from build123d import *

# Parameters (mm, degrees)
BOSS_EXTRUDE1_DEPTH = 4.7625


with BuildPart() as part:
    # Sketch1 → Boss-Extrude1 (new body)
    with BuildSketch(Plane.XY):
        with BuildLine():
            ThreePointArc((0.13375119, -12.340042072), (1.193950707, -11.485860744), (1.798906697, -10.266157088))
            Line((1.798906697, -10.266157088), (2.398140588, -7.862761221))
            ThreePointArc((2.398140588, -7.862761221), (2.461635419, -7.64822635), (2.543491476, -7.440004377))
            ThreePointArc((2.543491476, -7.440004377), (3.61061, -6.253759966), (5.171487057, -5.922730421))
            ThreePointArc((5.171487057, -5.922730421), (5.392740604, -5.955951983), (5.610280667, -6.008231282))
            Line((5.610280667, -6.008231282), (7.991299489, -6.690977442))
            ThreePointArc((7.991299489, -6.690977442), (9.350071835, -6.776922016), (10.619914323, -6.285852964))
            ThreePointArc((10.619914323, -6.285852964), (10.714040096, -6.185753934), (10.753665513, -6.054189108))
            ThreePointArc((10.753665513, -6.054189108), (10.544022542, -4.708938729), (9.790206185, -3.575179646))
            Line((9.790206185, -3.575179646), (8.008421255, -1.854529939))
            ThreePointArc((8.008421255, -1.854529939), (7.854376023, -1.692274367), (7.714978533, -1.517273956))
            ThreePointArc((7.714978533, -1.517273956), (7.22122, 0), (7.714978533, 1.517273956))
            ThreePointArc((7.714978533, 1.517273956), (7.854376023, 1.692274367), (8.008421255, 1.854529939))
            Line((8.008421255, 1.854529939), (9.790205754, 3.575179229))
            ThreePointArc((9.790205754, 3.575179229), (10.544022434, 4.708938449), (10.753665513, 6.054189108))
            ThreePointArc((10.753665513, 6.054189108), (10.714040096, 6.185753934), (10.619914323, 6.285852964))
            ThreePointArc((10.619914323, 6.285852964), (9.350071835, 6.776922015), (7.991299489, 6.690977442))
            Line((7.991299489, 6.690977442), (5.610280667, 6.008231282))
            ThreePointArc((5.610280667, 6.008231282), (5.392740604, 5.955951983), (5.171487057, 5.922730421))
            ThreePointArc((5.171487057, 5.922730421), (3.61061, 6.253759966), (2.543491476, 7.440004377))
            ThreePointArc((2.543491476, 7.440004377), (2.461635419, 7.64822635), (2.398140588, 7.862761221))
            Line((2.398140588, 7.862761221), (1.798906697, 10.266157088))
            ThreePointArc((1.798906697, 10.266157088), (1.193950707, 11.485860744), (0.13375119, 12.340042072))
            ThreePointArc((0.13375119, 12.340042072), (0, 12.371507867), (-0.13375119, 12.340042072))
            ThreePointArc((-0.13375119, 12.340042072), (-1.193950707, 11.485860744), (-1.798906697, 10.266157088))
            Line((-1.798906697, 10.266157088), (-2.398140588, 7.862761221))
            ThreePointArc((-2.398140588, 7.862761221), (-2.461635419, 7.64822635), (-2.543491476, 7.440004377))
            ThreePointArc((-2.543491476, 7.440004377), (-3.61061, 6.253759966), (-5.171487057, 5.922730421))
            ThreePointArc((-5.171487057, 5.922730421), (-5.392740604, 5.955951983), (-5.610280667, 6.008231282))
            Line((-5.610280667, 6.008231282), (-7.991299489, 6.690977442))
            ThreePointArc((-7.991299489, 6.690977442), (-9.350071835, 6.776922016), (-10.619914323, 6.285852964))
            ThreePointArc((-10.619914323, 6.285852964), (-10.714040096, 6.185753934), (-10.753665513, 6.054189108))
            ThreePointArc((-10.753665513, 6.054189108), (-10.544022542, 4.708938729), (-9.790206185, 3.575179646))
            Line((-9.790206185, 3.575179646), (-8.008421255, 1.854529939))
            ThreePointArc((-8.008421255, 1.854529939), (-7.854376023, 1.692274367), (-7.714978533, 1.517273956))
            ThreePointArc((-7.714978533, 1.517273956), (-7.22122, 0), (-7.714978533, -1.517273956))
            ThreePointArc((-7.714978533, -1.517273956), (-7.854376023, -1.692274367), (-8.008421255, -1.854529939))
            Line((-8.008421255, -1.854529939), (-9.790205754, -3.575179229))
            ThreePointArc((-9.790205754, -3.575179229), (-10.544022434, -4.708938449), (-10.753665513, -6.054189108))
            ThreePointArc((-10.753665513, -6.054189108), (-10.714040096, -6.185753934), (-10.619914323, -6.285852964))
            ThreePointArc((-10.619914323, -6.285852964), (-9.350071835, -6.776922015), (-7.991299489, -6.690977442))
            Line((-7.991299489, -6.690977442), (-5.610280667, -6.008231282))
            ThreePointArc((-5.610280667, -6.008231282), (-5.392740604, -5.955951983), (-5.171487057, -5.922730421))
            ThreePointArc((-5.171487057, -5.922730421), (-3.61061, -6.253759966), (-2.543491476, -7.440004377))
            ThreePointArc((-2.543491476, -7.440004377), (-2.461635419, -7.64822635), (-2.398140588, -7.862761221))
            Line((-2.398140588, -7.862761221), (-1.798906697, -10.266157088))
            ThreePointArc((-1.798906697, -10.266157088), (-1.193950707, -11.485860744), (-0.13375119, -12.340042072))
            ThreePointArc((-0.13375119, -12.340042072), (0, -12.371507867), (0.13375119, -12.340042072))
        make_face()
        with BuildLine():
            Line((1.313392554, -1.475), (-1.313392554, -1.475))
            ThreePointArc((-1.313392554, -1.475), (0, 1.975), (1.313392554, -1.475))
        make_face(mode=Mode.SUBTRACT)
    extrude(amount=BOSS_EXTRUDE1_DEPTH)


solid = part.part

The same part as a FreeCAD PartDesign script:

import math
import FreeCAD as App
import Part
import Sketcher
Q = App.Units.Quantity

doc = App.newDocument("Part")
body = doc.addObject("PartDesign::Body", "Body")

# Sketch on XY plane
sketch1 = body.newObject("Sketcher::SketchObject", "Sketch")
sketch1.AttachmentSupport = (doc.getObject("XY_Plane"), [""])
sketch1.MapMode = "FlatFace"
sketch1.addGeometry(Part.ArcOfCircle(Part.Circle(App.Vector(-1.28, -9.5, 0), App.Vector(0, 0, 1), 3.18), math.radians(-64), math.radians(-14)), False)
sketch1.addGeometry(Part.LineSegment(App.Vector(1.8, -10.27, 0), App.Vector(2.4, -7.86, 0)), False)
sketch1.addGeometry(Part.ArcOfCircle(Part.Circle(App.Vector(4.9, -8.49, 0), App.Vector(0, 0, 1), 2.58), math.radians(156.05), math.radians(166)), False)
sketch1.addGeometry(Part.ArcOfCircle(Part.Circle(App.Vector(4.9, -8.49, 0), App.Vector(0, 0, 1), 2.58), math.radians(84), math.radians(156)), False)
sketch1.addGeometry(Part.ArcOfCircle(Part.Circle(App.Vector(4.9, -8.49, 0), App.Vector(0, 0, 1), 2.58), math.radians(74), math.radians(83.95)), False)
sketch1.addGeometry(Part.LineSegment(App.Vector(5.61, -6.01, 0), App.Vector(7.99, -6.69, 0)), False)
sketch1.addGeometry(Part.ArcOfCircle(Part.Circle(App.Vector(8.87, -3.64, 0), App.Vector(0, 0, 1), 3.17), math.radians(-106), math.radians(-56)), False)
sketch1.addGeometry(Part.ArcOfCircle(Part.Circle(App.Vector(10.45, -6.04, 0), App.Vector(0, 0, 1), 0.3), math.radians(-56), math.radians(-4)), False)
sketch1.addGeometry(Part.ArcOfCircle(Part.Circle(App.Vector(7.58, -5.86, 0), App.Vector(0, 0, 1), 3.18), math.radians(-4), math.radians(46)), False)
sketch1.addGeometry(Part.LineSegment(App.Vector(9.79, -3.58, 0), App.Vector(8.01, -1.85, 0)), False)
sketch1.addGeometry(Part.ArcOfCircle(Part.Circle(App.Vector(9.8, 0, 0), App.Vector(0, 0, 1), 2.58), math.radians(-143.95), math.radians(-134)), False)
sketch1.addGeometry(Part.ArcOfCircle(Part.Circle(App.Vector(9.8, 0, 0), App.Vector(0, 0, 1), 2.58), math.radians(144), math.radians(216)), False)
sketch1.addGeometry(Part.ArcOfCircle(Part.Circle(App.Vector(9.8, 0, 0), App.Vector(0, 0, 1), 2.58), math.radians(134), math.radians(143.95)), False)
sketch1.addGeometry(Part.LineSegment(App.Vector(8.01, 1.85, 0), App.Vector(9.79, 3.58, 0)), False)
sketch1.addGeometry(Part.ArcOfCircle(Part.Circle(App.Vector(7.58, 5.86, 0), App.Vector(0, 0, 1), 3.17), math.radians(-46), math.radians(4)), False)
sketch1.addGeometry(Part.ArcOfCircle(Part.Circle(App.Vector(10.45, 6.04, 0), App.Vector(0, 0, 1), 0.3), math.radians(4), math.radians(56)), False)
sketch1.addGeometry(Part.ArcOfCircle(Part.Circle(App.Vector(8.87, 3.64, 0), App.Vector(0, 0, 1), 3.18), math.radians(56), math.radians(106)), False)
sketch1.addGeometry(Part.LineSegment(App.Vector(7.99, 6.69, 0), App.Vector(5.61, 6.01, 0)), False)
sketch1.addGeometry(Part.ArcOfCircle(Part.Circle(App.Vector(4.9, 8.49, 0), App.Vector(0, 0, 1), 2.58), math.radians(-83.95), math.radians(-74)), False)
sketch1.addGeometry(Part.ArcOfCircle(Part.Circle(App.Vector(4.9, 8.49, 0), App.Vector(0, 0, 1), 2.58), math.radians(-156), math.radians(-84)), False)
sketch1.addGeometry(Part.ArcOfCircle(Part.Circle(App.Vector(4.9, 8.49, 0), App.Vector(0, 0, 1), 2.58), math.radians(-166), math.radians(-156.05)), False)
sketch1.addGeometry(Part.LineSegment(App.Vector(2.4, 7.86, 0), App.Vector(1.8, 10.27, 0)), False)
sketch1.addGeometry(Part.ArcOfCircle(Part.Circle(App.Vector(-1.28, 9.5, 0), App.Vector(0, 0, 1), 3.18), math.radians(14), math.radians(64)), False)
sketch1.addGeometry(Part.ArcOfCircle(Part.Circle(App.Vector(0, 12.07, 0), App.Vector(0, 0, 1), 0.3), math.radians(64), math.radians(116)), False)
sketch1.addGeometry(Part.ArcOfCircle(Part.Circle(App.Vector(1.28, 9.5, 0), App.Vector(0, 0, 1), 3.18), math.radians(116), math.radians(166)), False)
sketch1.addGeometry(Part.LineSegment(App.Vector(-1.8, 10.27, 0), App.Vector(-2.4, 7.86, 0)), False)
sketch1.addGeometry(Part.ArcOfCircle(Part.Circle(App.Vector(-4.9, 8.49, 0), App.Vector(0, 0, 1), 2.58), math.radians(-23.95), math.radians(-14)), False)
sketch1.addGeometry(Part.ArcOfCircle(Part.Circle(App.Vector(-4.9, 8.49, 0), App.Vector(0, 0, 1), 2.58), math.radians(-96), math.radians(-24)), False)
sketch1.addGeometry(Part.ArcOfCircle(Part.Circle(App.Vector(-4.9, 8.49, 0), App.Vector(0, 0, 1), 2.58), math.radians(-106), math.radians(-96.05)), False)
sketch1.addGeometry(Part.LineSegment(App.Vector(-5.61, 6.01, 0), App.Vector(-7.99, 6.69, 0)), False)
sketch1.addGeometry(Part.ArcOfCircle(Part.Circle(App.Vector(-8.87, 3.64, 0), App.Vector(0, 0, 1), 3.17), math.radians(74), math.radians(124)), False)
sketch1.addGeometry(Part.ArcOfCircle(Part.Circle(App.Vector(-10.45, 6.04, 0), App.Vector(0, 0, 1), 0.3), math.radians(124), math.radians(176)), False)
sketch1.addGeometry(Part.ArcOfCircle(Part.Circle(App.Vector(-7.58, 5.86, 0), App.Vector(0, 0, 1), 3.18), math.radians(176), math.radians(226)), False)
sketch1.addGeometry(Part.LineSegment(App.Vector(-9.79, 3.58, 0), App.Vector(-8.01, 1.85, 0)), False)
sketch1.addGeometry(Part.ArcOfCircle(Part.Circle(App.Vector(-9.8, 0, 0), App.Vector(0, 0, 1), 2.58), math.radians(36.05), math.radians(46)), False)
sketch1.addGeometry(Part.ArcOfCircle(Part.Circle(App.Vector(-9.8, 0, 0), App.Vector(0, 0, 1), 2.58), math.radians(-36), math.radians(36)), False)
sketch1.addGeometry(Part.ArcOfCircle(Part.Circle(App.Vector(-9.8, 0, 0), App.Vector(0, 0, 1), 2.58), math.radians(-46), math.radians(-36.05)), False)
sketch1.addGeometry(Part.LineSegment(App.Vector(-8.01, -1.85, 0), App.Vector(-9.79, -3.58, 0)), False)
sketch1.addGeometry(Part.ArcOfCircle(Part.Circle(App.Vector(-7.58, -5.86, 0), App.Vector(0, 0, 1), 3.17), math.radians(134), math.radians(184)), False)
sketch1.addGeometry(Part.ArcOfCircle(Part.Circle(App.Vector(-10.45, -6.04, 0), App.Vector(0, 0, 1), 0.3), math.radians(-176), math.radians(-124)), False)
sketch1.addGeometry(Part.ArcOfCircle(Part.Circle(App.Vector(-8.87, -3.64, 0), App.Vector(0, 0, 1), 3.18), math.radians(-124), math.radians(-74)), False)
sketch1.addGeometry(Part.LineSegment(App.Vector(-7.99, -6.69, 0), App.Vector(-5.61, -6.01, 0)), False)
sketch1.addGeometry(Part.ArcOfCircle(Part.Circle(App.Vector(-4.9, -8.49, 0), App.Vector(0, 0, 1), 2.58), math.radians(96.05), math.radians(106)), False)
sketch1.addGeometry(Part.ArcOfCircle(Part.Circle(App.Vector(-4.9, -8.49, 0), App.Vector(0, 0, 1), 2.58), math.radians(24), math.radians(96)), False)
sketch1.addGeometry(Part.ArcOfCircle(Part.Circle(App.Vector(-4.9, -8.49, 0), App.Vector(0, 0, 1), 2.58), math.radians(14), math.radians(23.95)), False)
sketch1.addGeometry(Part.LineSegment(App.Vector(-2.4, -7.86, 0), App.Vector(-1.8, -10.27, 0)), False)
sketch1.addGeometry(Part.ArcOfCircle(Part.Circle(App.Vector(1.28, -9.5, 0), App.Vector(0, 0, 1), 3.18), math.radians(-166), math.radians(-116)), False)
sketch1.addGeometry(Part.ArcOfCircle(Part.Circle(App.Vector(0, -12.07, 0), App.Vector(0, 0, 1), 0.3), math.radians(-116), math.radians(-64)), False)
sketch1.addGeometry(Part.ArcOfCircle(Part.Circle(App.Vector(0, 0, 0), App.Vector(0, 0, 1), 1.98), math.radians(-48), math.radians(228)), False)
sketch1.addGeometry(Part.LineSegment(App.Vector(1.31, -1.48, 0), App.Vector(-1.31, -1.48, 0)), False)
sketch1.addConstraint(Sketcher.Constraint("Tangent", 0, 2, 1, 1))
sketch1.addConstraint(Sketcher.Constraint("Tangent", 1, 2, 2, 2))
sketch1.addConstraint(Sketcher.Constraint("Tangent", 2, 1, 3, 2))
sketch1.addConstraint(Sketcher.Constraint("Tangent", 3, 1, 4, 2))
sketch1.addConstraint(Sketcher.Constraint("Tangent", 4, 1, 5, 1))
sketch1.addConstraint(Sketcher.Constraint("Tangent", 5, 2, 6, 1))
sketch1.addConstraint(Sketcher.Constraint("Tangent", 6, 2, 7, 1))
sketch1.addConstraint(Sketcher.Constraint("Tangent", 7, 2, 8, 1))
sketch1.addConstraint(Sketcher.Constraint("Tangent", 8, 2, 9, 1))
sketch1.addConstraint(Sketcher.Constraint("Tangent", 9, 2, 10, 2))
sketch1.addConstraint(Sketcher.Constraint("Tangent", 10, 1, 11, 2))
sketch1.addConstraint(Sketcher.Constraint("Tangent", 11, 1, 12, 2))
sketch1.addConstraint(Sketcher.Constraint("Tangent", 12, 1, 13, 1))
sketch1.addConstraint(Sketcher.Constraint("Tangent", 13, 2, 14, 1))
sketch1.addConstraint(Sketcher.Constraint("Tangent", 14, 2, 15, 1))
sketch1.addConstraint(Sketcher.Constraint("Tangent", 15, 2, 16, 1))
sketch1.addConstraint(Sketcher.Constraint("Tangent", 16, 2, 17, 1))
sketch1.addConstraint(Sketcher.Constraint("Tangent", 17, 2, 18, 2))
sketch1.addConstraint(Sketcher.Constraint("Tangent", 18, 1, 19, 2))
sketch1.addConstraint(Sketcher.Constraint("Tangent", 19, 1, 20, 2))
sketch1.addConstraint(Sketcher.Constraint("Tangent", 20, 1, 21, 1))
sketch1.addConstraint(Sketcher.Constraint("Tangent", 21, 2, 22, 1))
sketch1.addConstraint(Sketcher.Constraint("Tangent", 22, 2, 23, 1))
sketch1.addConstraint(Sketcher.Constraint("Tangent", 23, 2, 24, 1))
sketch1.addConstraint(Sketcher.Constraint("Tangent", 24, 2, 25, 1))
sketch1.addConstraint(Sketcher.Constraint("Tangent", 25, 2, 26, 2))
sketch1.addConstraint(Sketcher.Constraint("Tangent", 26, 1, 27, 2))
sketch1.addConstraint(Sketcher.Constraint("Tangent", 27, 1, 28, 2))
sketch1.addConstraint(Sketcher.Constraint("Tangent", 28, 1, 29, 1))
sketch1.addConstraint(Sketcher.Constraint("Tangent", 29, 2, 30, 1))
sketch1.addConstraint(Sketcher.Constraint("Tangent", 30, 2, 31, 1))
sketch1.addConstraint(Sketcher.Constraint("Tangent", 31, 2, 32, 1))
sketch1.addConstraint(Sketcher.Constraint("Tangent", 32, 2, 33, 1))
sketch1.addConstraint(Sketcher.Constraint("Tangent", 33, 2, 34, 2))
sketch1.addConstraint(Sketcher.Constraint("Tangent", 34, 1, 35, 2))
sketch1.addConstraint(Sketcher.Constraint("Tangent", 35, 1, 36, 2))
sketch1.addConstraint(Sketcher.Constraint("Tangent", 36, 1, 37, 1))
sketch1.addConstraint(Sketcher.Constraint("Tangent", 37, 2, 38, 1))
sketch1.addConstraint(Sketcher.Constraint("Tangent", 38, 2, 39, 1))
sketch1.addConstraint(Sketcher.Constraint("Tangent", 39, 2, 40, 1))
sketch1.addConstraint(Sketcher.Constraint("Tangent", 40, 2, 41, 1))
sketch1.addConstraint(Sketcher.Constraint("Tangent", 41, 2, 42, 2))
sketch1.addConstraint(Sketcher.Constraint("Tangent", 42, 1, 43, 2))
sketch1.addConstraint(Sketcher.Constraint("Tangent", 43, 1, 44, 2))
sketch1.addConstraint(Sketcher.Constraint("Tangent", 44, 1, 45, 1))
sketch1.addConstraint(Sketcher.Constraint("Tangent", 45, 2, 46, 1))
sketch1.addConstraint(Sketcher.Constraint("Tangent", 46, 2, 47, 1))
sketch1.addConstraint(Sketcher.Constraint("Tangent", 47, 2, 0, 1))
sketch1.addConstraint(Sketcher.Constraint("Coincident", 48, 1, 49, 1))
sketch1.addConstraint(Sketcher.Constraint("Coincident", 49, 2, 48, 2))
sketch1.addConstraint(Sketcher.Constraint("Horizontal", 49))
sketch1.addConstraint(Sketcher.Constraint("Coincident", 48, 3, -1, 1))
sketch1.addConstraint(Sketcher.Constraint("Coincident", 4, 3, 2, 3))
sketch1.addConstraint(Sketcher.Constraint("Coincident", 12, 3, 10, 3))
sketch1.addConstraint(Sketcher.Constraint("Coincident", 20, 3, 18, 3))
sketch1.addConstraint(Sketcher.Constraint("Coincident", 28, 3, 26, 3))
sketch1.addConstraint(Sketcher.Constraint("Coincident", 36, 3, 34, 3))
sketch1.addConstraint(Sketcher.Constraint("Coincident", 44, 3, 42, 3))
sketch1.addConstraint(Sketcher.Constraint("Equal", 0, 6))
sketch1.addConstraint(Sketcher.Constraint("Equal", 6, 8))
sketch1.addConstraint(Sketcher.Constraint("Equal", 4, 10))
sketch1.addConstraint(Sketcher.Constraint("Equal", 8, 14))
sketch1.addConstraint(Sketcher.Constraint("Equal", 7, 15))
sketch1.addConstraint(Sketcher.Constraint("Equal", 14, 16))
sketch1.addConstraint(Sketcher.Constraint("Equal", 12, 18))
sketch1.addConstraint(Sketcher.Constraint("Equal", 16, 22))
sketch1.addConstraint(Sketcher.Constraint("Equal", 15, 23))
sketch1.addConstraint(Sketcher.Constraint("Equal", 22, 24))
sketch1.addConstraint(Sketcher.Constraint("Equal", 20, 26))
sketch1.addConstraint(Sketcher.Constraint("Equal", 24, 30))
sketch1.addConstraint(Sketcher.Constraint("Equal", 23, 31))
sketch1.addConstraint(Sketcher.Constraint("Equal", 30, 32))
sketch1.addConstraint(Sketcher.Constraint("Equal", 28, 34))
sketch1.addConstraint(Sketcher.Constraint("Equal", 32, 38))
sketch1.addConstraint(Sketcher.Constraint("Equal", 31, 39))
sketch1.addConstraint(Sketcher.Constraint("Equal", 38, 40))
sketch1.addConstraint(Sketcher.Constraint("Equal", 36, 42))
sketch1.addConstraint(Sketcher.Constraint("Equal", 40, 46))
sketch1.addConstraint(Sketcher.Constraint("Equal", 39, 47))
sketch1.addConstraint(Sketcher.Constraint("Symmetric", 0, 3, 24, 3, -1, 1))
sketch1.addConstraint(Sketcher.Constraint("Symmetric", 2, 3, 26, 3, -1, 1))
sketch1.addConstraint(Sketcher.Constraint("Symmetric", 6, 3, 30, 3, -1, 1))
sketch1.addConstraint(Sketcher.Constraint("Symmetric", 8, 3, 32, 3, -1, 1))
sketch1.addConstraint(Sketcher.Constraint("Symmetric", 10, 3, 34, 3, -1, 1))
sketch1.addConstraint(Sketcher.Constraint("Symmetric", 14, 3, 38, 3, -1, 1))
sketch1.addConstraint(Sketcher.Constraint("Symmetric", 16, 3, 40, 3, -1, 1))
sketch1.addConstraint(Sketcher.Constraint("Symmetric", 18, 3, 42, 3, -1, 1))
sketch1.addConstraint(Sketcher.Constraint("Symmetric", 22, 3, 46, 3, -1, 1))
sketch1.addConstraint(Sketcher.Constraint("Symmetric", 22, 3, 24, 3, -2))
sketch1.addConstraint(Sketcher.Constraint("Symmetric", 18, 3, 26, 3, -2))
sketch1.addConstraint(Sketcher.Constraint("Symmetric", 16, 3, 30, 3, -2))
sketch1.addConstraint(Sketcher.Constraint("Symmetric", 14, 3, 32, 3, -2))
sketch1.addConstraint(Sketcher.Constraint("Symmetric", 11, 1, 34, 1, -2))
sketch1.addConstraint(Sketcher.Constraint("Horizontal", 19, 1, 26, 1))
sketch1.addConstraint(Sketcher.Constraint("Horizontal", 18, 1, 27, 1))
sketch1.addConstraint(Sketcher.Constraint("Horizontal", 10, 1, 35, 1))
sketch1.addConstraint(Sketcher.Constraint("Horizontal", 3, 1, 42, 1))
sketch1.addConstraint(Sketcher.Constraint("Horizontal", 2, 1, 43, 1))
sketch1.addConstraint(Sketcher.Constraint("Vertical", 10, 1, 11, 1))
sketch1.addConstraint(Sketcher.Constraint("Vertical", 3, 1, 18, 1))
sketch1.addConstraint(Sketcher.Constraint("Vertical", 2, 1, 19, 1))
sketch1.addConstraint(Sketcher.Constraint("Equal", 1, 5))
sketch1.addConstraint(Sketcher.Constraint("Equal", 5, 9))
sketch1.addConstraint(Sketcher.Constraint("Angle", 1, Q("76 deg")))
sketch1.addConstraint(Sketcher.Constraint("Angle", 5, Q("-16 deg")))
sketch1.addConstraint(Sketcher.Constraint("Angle", 9, Q("136 deg")))
sketch1.addConstraint(Sketcher.Constraint("Radius", 0, Q("0.125 in")))
sketch1.addConstraint(Sketcher.Constraint("Radius", 2, Q("0.1015 in")))
sketch1.addConstraint(Sketcher.Constraint("Radius", 7, 0.3))
sketch1.addConstraint(Sketcher.Constraint("Radius", 48, 1.975))
sketch1.addConstraint(Sketcher.Constraint("DistanceX", -1, 1, 2, 3, Q("0.1929 in")))
sketch1.addConstraint(Sketcher.Constraint("DistanceX", -1, 1, 10, 3, Q("0.3858 in")))
sketch1.addConstraint(Sketcher.Constraint("DistanceX", -1, 1, 5, 2, 7.991299))
sketch1.addConstraint(Sketcher.Constraint("DistanceY", 48, 1, -1, 1, 1.475))
sketch1.addConstraint(Sketcher.Constraint("DistanceY", 2, 3, -1, 1, 8.48646))
sketch1.addConstraint(Sketcher.Constraint("DistanceX", -1, 1, 2, 1, 2.543491))
sketch1.addConstraint(Sketcher.Constraint("DistanceY", 3, 1, -1, 1, 5.92273))
sketch1.addConstraint(Sketcher.Constraint("DistanceX", -1, 1, 10, 1, 7.714979))
pad1 = body.newObject("PartDesign::Pad", "Pad")
pad1.Profile = sketch1
pad1.Length = Q("0.1875 in")

doc.recompute()
